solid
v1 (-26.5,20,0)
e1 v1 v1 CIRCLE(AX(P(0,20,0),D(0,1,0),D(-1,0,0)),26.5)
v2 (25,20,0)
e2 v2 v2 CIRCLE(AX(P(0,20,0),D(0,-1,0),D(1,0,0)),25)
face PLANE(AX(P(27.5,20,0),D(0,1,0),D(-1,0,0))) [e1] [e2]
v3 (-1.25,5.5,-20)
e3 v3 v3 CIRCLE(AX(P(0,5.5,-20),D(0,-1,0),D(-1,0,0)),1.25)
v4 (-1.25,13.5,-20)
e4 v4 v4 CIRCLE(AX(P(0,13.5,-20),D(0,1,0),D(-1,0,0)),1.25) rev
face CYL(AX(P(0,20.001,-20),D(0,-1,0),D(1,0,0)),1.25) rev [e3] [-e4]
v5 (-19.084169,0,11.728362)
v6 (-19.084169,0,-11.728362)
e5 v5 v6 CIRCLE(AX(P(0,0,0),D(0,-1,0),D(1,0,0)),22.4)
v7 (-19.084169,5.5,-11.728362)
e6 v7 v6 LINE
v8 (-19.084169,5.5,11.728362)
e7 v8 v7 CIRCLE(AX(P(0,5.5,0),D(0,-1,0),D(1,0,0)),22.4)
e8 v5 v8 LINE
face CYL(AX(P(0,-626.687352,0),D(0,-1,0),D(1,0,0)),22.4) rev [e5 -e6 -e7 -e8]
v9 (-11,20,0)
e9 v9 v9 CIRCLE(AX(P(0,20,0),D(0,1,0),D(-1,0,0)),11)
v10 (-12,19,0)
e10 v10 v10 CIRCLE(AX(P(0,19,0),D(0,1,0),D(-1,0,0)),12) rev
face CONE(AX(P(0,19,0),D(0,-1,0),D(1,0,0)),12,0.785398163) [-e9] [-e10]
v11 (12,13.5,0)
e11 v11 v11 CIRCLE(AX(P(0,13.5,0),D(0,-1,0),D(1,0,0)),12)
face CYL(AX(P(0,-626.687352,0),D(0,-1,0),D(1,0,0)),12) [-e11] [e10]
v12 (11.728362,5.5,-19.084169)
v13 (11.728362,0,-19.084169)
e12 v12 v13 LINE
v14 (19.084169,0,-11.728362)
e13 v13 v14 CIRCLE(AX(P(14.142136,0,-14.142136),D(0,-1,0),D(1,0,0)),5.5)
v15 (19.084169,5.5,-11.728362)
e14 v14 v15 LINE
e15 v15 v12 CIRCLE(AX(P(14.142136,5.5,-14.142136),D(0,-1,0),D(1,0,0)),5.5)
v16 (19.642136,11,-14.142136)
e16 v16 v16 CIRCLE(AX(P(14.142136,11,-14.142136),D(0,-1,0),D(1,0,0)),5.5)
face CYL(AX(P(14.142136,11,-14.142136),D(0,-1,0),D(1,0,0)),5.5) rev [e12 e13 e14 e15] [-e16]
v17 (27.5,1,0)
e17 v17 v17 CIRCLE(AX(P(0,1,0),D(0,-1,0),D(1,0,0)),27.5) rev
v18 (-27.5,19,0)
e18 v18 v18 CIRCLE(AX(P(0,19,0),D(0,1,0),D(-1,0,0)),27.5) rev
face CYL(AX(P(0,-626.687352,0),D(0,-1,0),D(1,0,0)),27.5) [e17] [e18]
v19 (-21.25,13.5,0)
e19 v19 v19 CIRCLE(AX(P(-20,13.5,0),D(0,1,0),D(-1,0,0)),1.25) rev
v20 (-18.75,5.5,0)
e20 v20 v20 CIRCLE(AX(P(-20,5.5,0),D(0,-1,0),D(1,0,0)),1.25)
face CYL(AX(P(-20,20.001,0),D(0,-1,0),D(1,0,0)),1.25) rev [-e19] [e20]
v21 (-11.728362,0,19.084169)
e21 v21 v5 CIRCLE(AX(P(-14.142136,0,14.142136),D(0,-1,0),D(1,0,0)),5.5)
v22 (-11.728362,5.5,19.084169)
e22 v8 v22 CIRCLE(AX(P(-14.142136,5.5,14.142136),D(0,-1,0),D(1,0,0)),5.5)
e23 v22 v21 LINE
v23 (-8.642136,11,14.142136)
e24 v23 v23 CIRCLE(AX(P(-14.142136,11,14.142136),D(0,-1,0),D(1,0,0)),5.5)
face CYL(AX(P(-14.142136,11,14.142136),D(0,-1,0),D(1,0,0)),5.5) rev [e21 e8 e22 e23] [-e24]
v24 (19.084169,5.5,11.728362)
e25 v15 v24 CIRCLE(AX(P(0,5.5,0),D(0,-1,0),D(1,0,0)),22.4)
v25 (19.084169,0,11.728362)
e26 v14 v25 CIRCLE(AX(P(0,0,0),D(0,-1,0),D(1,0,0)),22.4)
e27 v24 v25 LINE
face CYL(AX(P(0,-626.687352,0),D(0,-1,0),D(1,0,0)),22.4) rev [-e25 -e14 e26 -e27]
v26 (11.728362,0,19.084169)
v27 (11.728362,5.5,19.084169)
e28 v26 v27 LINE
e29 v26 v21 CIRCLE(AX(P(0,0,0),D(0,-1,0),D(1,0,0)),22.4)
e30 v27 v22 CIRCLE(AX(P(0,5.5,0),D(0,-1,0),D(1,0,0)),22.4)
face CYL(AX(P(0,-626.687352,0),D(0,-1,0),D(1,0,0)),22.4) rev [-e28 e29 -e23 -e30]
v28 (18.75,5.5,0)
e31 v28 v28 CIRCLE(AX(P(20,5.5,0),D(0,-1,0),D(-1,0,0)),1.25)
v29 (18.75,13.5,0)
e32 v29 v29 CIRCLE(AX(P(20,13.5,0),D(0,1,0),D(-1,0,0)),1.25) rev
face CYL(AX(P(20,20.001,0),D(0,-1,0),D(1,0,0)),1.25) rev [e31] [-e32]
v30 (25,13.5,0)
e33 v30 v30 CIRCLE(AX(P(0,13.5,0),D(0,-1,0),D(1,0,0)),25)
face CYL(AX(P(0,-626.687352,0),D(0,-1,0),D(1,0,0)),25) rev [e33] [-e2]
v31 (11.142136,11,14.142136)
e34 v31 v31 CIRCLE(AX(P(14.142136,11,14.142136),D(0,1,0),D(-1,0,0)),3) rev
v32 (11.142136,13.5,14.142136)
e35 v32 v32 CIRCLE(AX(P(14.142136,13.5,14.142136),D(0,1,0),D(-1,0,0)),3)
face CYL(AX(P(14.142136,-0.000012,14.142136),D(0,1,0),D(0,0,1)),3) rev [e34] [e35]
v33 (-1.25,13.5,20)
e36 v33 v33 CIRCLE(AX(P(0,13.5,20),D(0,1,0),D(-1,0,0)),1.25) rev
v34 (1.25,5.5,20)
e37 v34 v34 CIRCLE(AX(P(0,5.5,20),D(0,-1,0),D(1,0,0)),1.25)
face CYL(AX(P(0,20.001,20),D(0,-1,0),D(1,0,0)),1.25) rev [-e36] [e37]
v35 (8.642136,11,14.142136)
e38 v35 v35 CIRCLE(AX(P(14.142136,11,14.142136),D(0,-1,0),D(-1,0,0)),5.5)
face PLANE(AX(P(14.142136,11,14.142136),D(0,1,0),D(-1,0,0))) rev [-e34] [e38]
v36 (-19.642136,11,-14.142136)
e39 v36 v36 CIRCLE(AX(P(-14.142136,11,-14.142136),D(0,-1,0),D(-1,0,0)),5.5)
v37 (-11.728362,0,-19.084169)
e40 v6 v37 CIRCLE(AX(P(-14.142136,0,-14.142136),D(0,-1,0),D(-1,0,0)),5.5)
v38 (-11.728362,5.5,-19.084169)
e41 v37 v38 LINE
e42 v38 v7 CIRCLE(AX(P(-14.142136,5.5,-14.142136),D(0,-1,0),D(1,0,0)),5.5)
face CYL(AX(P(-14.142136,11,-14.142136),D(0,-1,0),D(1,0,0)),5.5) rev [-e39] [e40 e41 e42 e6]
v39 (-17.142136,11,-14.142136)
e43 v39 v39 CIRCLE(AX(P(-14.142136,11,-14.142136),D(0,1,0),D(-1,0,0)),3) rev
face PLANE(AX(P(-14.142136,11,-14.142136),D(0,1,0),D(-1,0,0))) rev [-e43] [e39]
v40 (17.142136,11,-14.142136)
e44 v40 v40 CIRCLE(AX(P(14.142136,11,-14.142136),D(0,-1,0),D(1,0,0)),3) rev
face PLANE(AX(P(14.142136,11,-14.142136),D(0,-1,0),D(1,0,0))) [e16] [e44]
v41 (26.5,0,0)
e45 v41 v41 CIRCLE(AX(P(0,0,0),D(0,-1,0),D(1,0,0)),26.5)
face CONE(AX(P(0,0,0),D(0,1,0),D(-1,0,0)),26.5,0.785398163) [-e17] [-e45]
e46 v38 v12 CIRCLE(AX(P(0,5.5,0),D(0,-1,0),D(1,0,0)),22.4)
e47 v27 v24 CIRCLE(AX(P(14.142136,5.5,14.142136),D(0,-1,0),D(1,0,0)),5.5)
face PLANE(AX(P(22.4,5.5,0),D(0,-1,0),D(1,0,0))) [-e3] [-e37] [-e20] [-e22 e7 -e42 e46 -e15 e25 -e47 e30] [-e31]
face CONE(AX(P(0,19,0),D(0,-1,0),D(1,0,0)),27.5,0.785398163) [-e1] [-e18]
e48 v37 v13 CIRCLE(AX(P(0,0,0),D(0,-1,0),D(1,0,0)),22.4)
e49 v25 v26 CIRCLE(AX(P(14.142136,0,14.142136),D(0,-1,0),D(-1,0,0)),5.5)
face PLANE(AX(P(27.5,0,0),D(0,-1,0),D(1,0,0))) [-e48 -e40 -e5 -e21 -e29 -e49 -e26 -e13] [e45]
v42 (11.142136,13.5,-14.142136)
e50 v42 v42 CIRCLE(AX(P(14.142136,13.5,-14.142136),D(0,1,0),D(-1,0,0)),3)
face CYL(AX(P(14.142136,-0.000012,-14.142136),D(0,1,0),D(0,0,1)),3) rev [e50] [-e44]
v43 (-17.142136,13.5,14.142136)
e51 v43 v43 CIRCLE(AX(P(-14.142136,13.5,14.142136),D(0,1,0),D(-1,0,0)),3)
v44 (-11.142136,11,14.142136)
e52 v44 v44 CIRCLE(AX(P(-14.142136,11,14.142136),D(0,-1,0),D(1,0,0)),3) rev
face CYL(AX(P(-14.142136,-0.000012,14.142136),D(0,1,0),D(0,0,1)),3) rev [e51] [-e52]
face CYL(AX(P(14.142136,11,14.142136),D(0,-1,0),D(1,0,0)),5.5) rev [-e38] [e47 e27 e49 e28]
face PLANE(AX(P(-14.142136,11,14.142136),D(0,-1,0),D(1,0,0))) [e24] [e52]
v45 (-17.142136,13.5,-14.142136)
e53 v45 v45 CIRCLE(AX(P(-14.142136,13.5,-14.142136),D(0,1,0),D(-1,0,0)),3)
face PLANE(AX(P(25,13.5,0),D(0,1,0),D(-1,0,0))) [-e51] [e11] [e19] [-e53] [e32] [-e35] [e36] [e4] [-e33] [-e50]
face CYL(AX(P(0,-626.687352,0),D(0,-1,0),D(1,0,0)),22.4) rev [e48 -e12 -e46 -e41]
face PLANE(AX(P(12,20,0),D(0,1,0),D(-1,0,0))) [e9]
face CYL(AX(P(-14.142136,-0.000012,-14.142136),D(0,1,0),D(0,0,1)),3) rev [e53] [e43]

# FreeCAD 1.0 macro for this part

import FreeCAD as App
import Part
import Sketcher
from FreeCAD import Vector


def edges_at(feature, points):
    """Names of the edges that pass closest to the given points."""
    edges = feature.Shape.Edges
    near = lambda p: min(range(len(edges)), key=lambda i: edges[i].distToShape(Part.Vertex(*p))[0])
    return sorted({f"Edge{near(p) + 1}" for p in points})


def add_polygon(sketch, points):
    """Adds a closed chain of lines whose ends are joined by coincident constraints."""
    first, n = sketch.GeometryCount, len(points)
    for a, b in zip(points, points[1:] + points[:1]):
        sketch.addGeometry(Part.LineSegment(App.Vector(*a, 0), App.Vector(*b, 0)), False)
    for i in range(n):
        sketch.addConstraint(Sketcher.Constraint("Coincident", first + i, 2, first + (i + 1) % n, 1))

doc = App.newDocument("Part")
body = doc.addObject("PartDesign::Body", "Body")

sketch1 = body.newObject("Sketcher::SketchObject", "Sketch")
sketch1.AttachmentSupport = (doc.getObject("XY_Plane"), [""])
sketch1.MapMode = "FlatFace"
add_polygon(sketch1, [(27.5, 0), (27.5, 20), (25, 20), (25, 13.5), (12, 13.5), (12, 20), (0, 20), (0, 5.5), (22.4, 5.5), (22.4, 0)])
sketch1.addConstraint(Sketcher.Constraint("Vertical", 0))
sketch1.addConstraint(Sketcher.Constraint("Horizontal", 1))
sketch1.addConstraint(Sketcher.Constraint("Vertical", 2))
sketch1.addConstraint(Sketcher.Constraint("Horizontal", 3))
sketch1.addConstraint(Sketcher.Constraint("Vertical", 4))
sketch1.addConstraint(Sketcher.Constraint("Horizontal", 5))
sketch1.addConstraint(Sketcher.Constraint("Vertical", 6))
sketch1.addConstraint(Sketcher.Constraint("Horizontal", 7))
sketch1.addConstraint(Sketcher.Constraint("Vertical", 8))
sketch1.addConstraint(Sketcher.Constraint("Horizontal", 9))
sketch1.addConstraint(Sketcher.Constraint("PointOnObject", 5, 2, -2))
sketch1.addConstraint(Sketcher.Constraint("PointOnObject", 8, 2, -1))
sketch1.addConstraint(Sketcher.Constraint("Horizontal", 1, 2, 4, 2))
sketch1.addConstraint(Sketcher.Constraint("DistanceX", 3, 2, 3, 1, 13.0))
sketch1.addConstraint(Sketcher.Constraint("DistanceX", 5, 2, 5, 1, 12.0))
sketch1.addConstraint(Sketcher.Constraint("DistanceY", 0, 1, 0, 2, 20.0))
sketch1.addConstraint(Sketcher.Constraint("DistanceX", 1, 2, 1, 1, 2.5))
sketch1.addConstraint(Sketcher.Constraint("DistanceX", 7, 1, 7, 2, 22.4))
sketch1.addConstraint(Sketcher.Constraint("DistanceY", 2, 2, 2, 1, 6.5))
sketch1.addConstraint(Sketcher.Constraint("DistanceY", 6, 2, 6, 1, 14.5))
revolution = body.newObject("PartDesign::Revolution", "Revolution")
revolution.Profile = sketch1
revolution.ReferenceAxis = (sketch1, ["V_Axis"])
revolution.Angle = 360

sketch2 = body.newObject("Sketcher::SketchObject", "Sketch001")
sketch2.AttachmentSupport = (doc.getObject("XZ_Plane"), [""])
sketch2.MapMode = "FlatFace"
sketch2.addGeometry(Part.Circle(Vector(-14.1, -14.1, 0), Vector(0, 0, 1), 3), False)
sketch2.addGeometry(Part.Circle(Vector(14.1, -14.1, 0), Vector(0, 0, 1), 3), False)
sketch2.addGeometry(Part.Circle(Vector(14.1, 14.1, 0), Vector(0, 0, 1), 3), False)
sketch2.addGeometry(Part.Circle(Vector(-14.1, 14.1, 0), Vector(0, 0, 1), 3), False)
sketch2.addConstraint(Sketcher.Constraint("Equal", 0, 1))
sketch2.addConstraint(Sketcher.Constraint("Equal", 1, 2))
sketch2.addConstraint(Sketcher.Constraint("Equal", 2, 3))
sketch2.addConstraint(Sketcher.Constraint("Symmetric", 0, 3, 2, 3, -1, 1))
sketch2.addConstraint(Sketcher.Constraint("Symmetric", 1, 3, 3, 3, -1, 1))
sketch2.addConstraint(Sketcher.Constraint("Symmetric", 0, 3, 1, 3, -2))
sketch2.addConstraint(Sketcher.Constraint("Diameter", 0, 6.0))
sketch2.addConstraint(Sketcher.Constraint("DistanceX", 0, 3, 1, 3, 28.284271))
sketch2.addConstraint(Sketcher.Constraint("DistanceY", 1, 3, 2, 3, 28.284271))
pocket1 = body.newObject("PartDesign::Pocket", "Pocket")
pocket1.Profile = sketch2
pocket1.Type = "ThroughAll"
pocket1.Midplane = True

sketch3 = body.newObject("Sketcher::SketchObject", "Sketch002")
sketch3.AttachmentSupport = (doc.getObject("XZ_Plane"), [""])
sketch3.MapMode = "FlatFace"
sketch3.addGeometry(Part.Circle(Vector(-14, 14, 0), Vector(0, 0, 1), 6), False)
sketch3.addGeometry(Part.Circle(Vector(14, 14, 0), Vector(0, 0, 1), 6), False)
sketch3.addGeometry(Part.Circle(Vector(14, -14, 0), Vector(0, 0, 1), 6), False)
sketch3.addGeometry(Part.Circle(Vector(-14, -14, 0), Vector(0, 0, 1), 6), False)
sketch3.addConstraint(Sketcher.Constraint("Equal", 0, 1))
sketch3.addConstraint(Sketcher.Constraint("Equal", 1, 2))
sketch3.addConstraint(Sketcher.Constraint("Equal", 2, 3))
sketch3.addConstraint(Sketcher.Constraint("Symmetric", 0, 3, 2, 3, -1, 1))
sketch3.addConstraint(Sketcher.Constraint("Symmetric", 1, 3, 3, 3, -1, 1))
sketch3.addConstraint(Sketcher.Constraint("Symmetric", 0, 3, 1, 3, -2))
sketch3.addConstraint(Sketcher.Constraint("Diameter", 0, 11.0))
sketch3.addConstraint(Sketcher.Constraint("DistanceX", 0, 3, 1, 3, 28.284271))
sketch3.addConstraint(Sketcher.Constraint("DistanceY", 2, 3, 1, 3, 28.284271))
pocket2 = body.newObject("PartDesign::Pocket", "Pocket001")
pocket2.Profile = sketch3
pocket2.Length = 11

sketch4 = body.newObject("Sketcher::SketchObject", "Sketch003")
sketch4.AttachmentSupport = (doc.getObject("XZ_Plane"), [""])
sketch4.MapMode = "FlatFace"
sketch4.AttachmentOffset = App.Placement(Vector(0, 0, -5.5), App.Rotation())
sketch4.addGeometry(Part.Circle(Vector(0, 20, 0), Vector(0, 0, 1), 1.2), False)
sketch4.addConstraint(Sketcher.Constraint("PointOnObject", 0, 3, -2))
sketch4.addConstraint(Sketcher.Constraint("Diameter", 0, 2.5))
sketch4.addConstraint(Sketcher.Constraint("DistanceY", -1, 1, 0, 3, 20.0))
pocket3 = body.newObject("PartDesign::Pocket", "Pocket002")
pocket3.Profile = sketch4
pocket3.Type = "UpToFirst"

sketch5 = body.newObject("Sketcher::SketchObject", "Sketch004")
sketch5.AttachmentSupport = (doc.getObject("XZ_Plane"), [""])
sketch5.MapMode = "FlatFace"
sketch5.AttachmentOffset = App.Placement(Vector(0, 0, -5.5), App.Rotation())
sketch5.addGeometry(Part.Circle(Vector(-20, 0, 0), Vector(0, 0, 1), 1.2), False)
sketch5.addConstraint(Sketcher.Constraint("PointOnObject", 0, 3, -1))
sketch5.addConstraint(Sketcher.Constraint("Diameter", 0, 2.5))
sketch5.addConstraint(Sketcher.Constraint("DistanceX", 0, 3, -1, 1, 20.0))
pocket4 = body.newObject("PartDesign::Pocket", "Pocket003")
pocket4.Profile = sketch5
pocket4.Type = "UpToFirst"

sketch6 = body.newObject("Sketcher::SketchObject", "Sketch005")
sketch6.AttachmentSupport = (doc.getObject("XZ_Plane"), [""])
sketch6.MapMode = "FlatFace"
sketch6.AttachmentOffset = App.Placement(Vector(0, 0, -5.5), App.Rotation())
sketch6.addGeometry(Part.Circle(Vector(0, -20, 0), Vector(0, 0, 1), 1.2), False)
sketch6.addConstraint(Sketcher.Constraint("PointOnObject", 0, 3, -2))
sketch6.addConstraint(Sketcher.Constraint("Diameter", 0, 2.5))
sketch6.addConstraint(Sketcher.Constraint("DistanceY", 0, 3, -1, 1, 20.0))
pocket5 = body.newObject("PartDesign::Pocket", "Pocket004")
pocket5.Profile = sketch6
pocket5.Type = "UpToFirst"

sketch7 = body.newObject("Sketcher::SketchObject", "Sketch006")
sketch7.AttachmentSupport = (doc.getObject("XZ_Plane"), [""])
sketch7.MapMode = "FlatFace"
sketch7.AttachmentOffset = App.Placement(Vector(0, 0, -5.5), App.Rotation())
sketch7.addGeometry(Part.Circle(Vector(20, 0, 0), Vector(0, 0, 1), 1.2), False)
sketch7.addConstraint(Sketcher.Constraint("PointOnObject", 0, 3, -1))
sketch7.addConstraint(Sketcher.Constraint("Diameter", 0, 2.5))
sketch7.addConstraint(Sketcher.Constraint("DistanceX", -1, 1, 0, 3, 20.0))
pocket6 = body.newObject("PartDesign::Pocket", "Pocket005")
pocket6.Profile = sketch7
pocket6.Type = "UpToFirst"
doc.recompute()

chamfer = body.newObject("PartDesign::Chamfer", "Chamfer")
chamfer.Base = (pocket6, edges_at(pocket6, [(-12, 20, 0), (-27.5, 0, 0), (-27.5, 20, 0)]))
chamfer.Size = 1

doc.recompute()
